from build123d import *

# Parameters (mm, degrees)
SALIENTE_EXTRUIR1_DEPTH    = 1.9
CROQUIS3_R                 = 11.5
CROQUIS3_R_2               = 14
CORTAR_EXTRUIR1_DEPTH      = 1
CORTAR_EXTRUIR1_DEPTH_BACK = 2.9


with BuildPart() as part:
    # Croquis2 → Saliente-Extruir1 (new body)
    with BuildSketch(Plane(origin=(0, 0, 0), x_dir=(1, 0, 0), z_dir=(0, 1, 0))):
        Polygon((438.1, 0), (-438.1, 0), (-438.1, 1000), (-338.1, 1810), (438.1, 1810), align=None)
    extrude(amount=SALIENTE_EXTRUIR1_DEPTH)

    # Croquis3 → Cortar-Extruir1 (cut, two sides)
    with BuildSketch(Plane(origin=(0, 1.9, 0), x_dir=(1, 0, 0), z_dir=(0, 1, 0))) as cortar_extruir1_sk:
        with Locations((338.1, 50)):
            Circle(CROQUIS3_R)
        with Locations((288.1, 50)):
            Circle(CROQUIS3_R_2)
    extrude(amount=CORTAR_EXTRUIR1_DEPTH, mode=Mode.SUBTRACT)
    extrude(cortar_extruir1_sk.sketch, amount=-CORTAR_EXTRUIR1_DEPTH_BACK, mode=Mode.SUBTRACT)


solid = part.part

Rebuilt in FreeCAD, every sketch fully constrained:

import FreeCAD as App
import Part
import Sketcher

doc = App.newDocument("Part")
body = doc.addObject("PartDesign::Body", "Body")

# Sketch on XZ plane
sketch1 = body.newObject("Sketcher::SketchObject", "Sketch")
sketch1.AttachmentSupport = (doc.getObject("XZ_Plane"), [""])
sketch1.MapMode = "FlatFace"
sketch1.addGeometry([
    Part.LineSegment(App.Vector(-438.1, 0, 0), App.Vector(438.1, 0, 0)),  # 0
    Part.LineSegment(App.Vector(438.1, 0, 0), App.Vector(438.1, -1810, 0)),  # 1
    Part.LineSegment(App.Vector(438.1, -1810, 0), App.Vector(-338.1, -1810, 0)),  # 2
    Part.LineSegment(App.Vector(-338.1, -1810, 0), App.Vector(-438.1, -1000, 0)),  # 3
    Part.LineSegment(App.Vector(-438.1, -1000, 0), App.Vector(-438.1, 0, 0)),  # 4
], False)
sketch1.addConstraint([
    Sketcher.Constraint("Coincident", 0, 2, 1, 1),
    Sketcher.Constraint("Coincident", 1, 2, 2, 1),
    Sketcher.Constraint("Coincident", 2, 2, 3, 1),
    Sketcher.Constraint("Coincident", 3, 2, 4, 1),
    Sketcher.Constraint("Coincident", 4, 2, 0, 1),
    Sketcher.Constraint("Horizontal", 0),
    Sketcher.Constraint("Vertical", 1),
    Sketcher.Constraint("Horizontal", 2),
    Sketcher.Constraint("Vertical", 4),
    Sketcher.Constraint("Symmetric", 0, 2, 4, 2, -1, 1),
    Sketcher.Constraint("DistanceY", 1, 2, 1, 1, 1810.0),
    Sketcher.Constraint("DistanceY", 4, 1, 4, 2, 1000.0),
    Sketcher.Constraint("DistanceX", 0, 1, 0, 2, 876.2),
    Sketcher.Constraint("DistanceX", 2, 2, 2, 1, 776.2),
])
pad1 = body.newObject("PartDesign::Pad", "Pad")
pad1.Profile = sketch1
pad1.Length = 1.9
pad1.Reversed = True

# Sketch on XZ plane
sketch2 = body.newObject("Sketcher::SketchObject", "Sketch001")
sketch2.AttachmentSupport = (doc.getObject("XZ_Plane"), [""])
sketch2.MapMode = "FlatFace"
sketch2.AttachmentOffset = App.Placement(App.Vector(0, 0, -1.9), App.Rotation())
sketch2.addGeometry([
    Part.Circle(App.Vector(338.1, -50, 0), App.Vector(0, 0, 1), 11.5),
    Part.Circle(App.Vector(288.1, -50, 0), App.Vector(0, 0, 1), 14),
], False)
sketch2.addConstraint([
    Sketcher.Constraint("Horizontal", 0, 3, 1, 3),
    Sketcher.Constraint("Diameter", 0, 23.0),
    Sketcher.Constraint("Diameter", 1, 28.0),
    Sketcher.Constraint("DistanceY", 0, 3, -1, 1, 50.0),
    Sketcher.Constraint("DistanceX", 1, 3, 0, 3, 50.0),
    Sketcher.Constraint("DistanceX", -1, 1, 0, 3, 338.1),
])
pocket1 = body.newObject("PartDesign::Pocket", "Pocket")
pocket1.Profile = sketch2
pocket1.Type = "ThroughAll"
pocket1.Midplane = True

doc.recompute()
